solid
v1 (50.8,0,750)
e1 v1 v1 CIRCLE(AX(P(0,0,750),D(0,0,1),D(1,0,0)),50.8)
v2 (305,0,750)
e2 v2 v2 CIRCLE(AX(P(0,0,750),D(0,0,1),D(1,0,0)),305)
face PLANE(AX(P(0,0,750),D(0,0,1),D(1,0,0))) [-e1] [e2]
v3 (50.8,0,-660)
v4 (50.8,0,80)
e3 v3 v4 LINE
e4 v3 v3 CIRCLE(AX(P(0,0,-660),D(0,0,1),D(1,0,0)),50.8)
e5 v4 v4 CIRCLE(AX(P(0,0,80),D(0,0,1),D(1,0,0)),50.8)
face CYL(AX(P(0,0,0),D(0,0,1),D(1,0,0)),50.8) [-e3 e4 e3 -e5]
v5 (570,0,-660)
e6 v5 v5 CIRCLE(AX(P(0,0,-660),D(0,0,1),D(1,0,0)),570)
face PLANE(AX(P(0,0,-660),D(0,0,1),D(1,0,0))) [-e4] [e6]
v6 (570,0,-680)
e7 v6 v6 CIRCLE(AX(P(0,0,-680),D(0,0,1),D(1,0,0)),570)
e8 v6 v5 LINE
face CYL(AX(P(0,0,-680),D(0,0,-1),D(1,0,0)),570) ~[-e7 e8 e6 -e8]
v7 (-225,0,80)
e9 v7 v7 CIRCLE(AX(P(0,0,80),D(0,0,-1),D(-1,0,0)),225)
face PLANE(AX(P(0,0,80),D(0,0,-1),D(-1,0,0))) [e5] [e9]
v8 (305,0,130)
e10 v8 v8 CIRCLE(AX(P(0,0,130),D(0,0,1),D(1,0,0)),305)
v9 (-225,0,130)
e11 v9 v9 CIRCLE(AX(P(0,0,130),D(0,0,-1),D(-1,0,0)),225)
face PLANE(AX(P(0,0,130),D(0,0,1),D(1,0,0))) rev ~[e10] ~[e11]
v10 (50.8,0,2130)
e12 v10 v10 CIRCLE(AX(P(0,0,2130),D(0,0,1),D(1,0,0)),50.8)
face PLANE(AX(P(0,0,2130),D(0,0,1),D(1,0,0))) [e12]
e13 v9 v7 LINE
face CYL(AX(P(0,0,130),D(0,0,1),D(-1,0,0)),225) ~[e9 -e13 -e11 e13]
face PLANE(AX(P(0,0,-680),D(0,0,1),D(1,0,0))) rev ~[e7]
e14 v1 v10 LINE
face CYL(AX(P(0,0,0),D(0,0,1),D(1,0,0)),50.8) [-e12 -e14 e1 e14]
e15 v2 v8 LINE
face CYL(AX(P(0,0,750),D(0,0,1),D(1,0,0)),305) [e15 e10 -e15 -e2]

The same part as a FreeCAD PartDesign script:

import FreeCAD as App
import Part
import Sketcher

V = App.Vector
Q = App.Units.Quantity

doc = App.newDocument("Part")
params = doc.addObject("Spreadsheet::Sheet", "Params")
for row, (alias, value) in enumerate([
    ("sketch1_diameter", "101.6 mm"),
    ("pad1_length", "2130 mm"),
    ("pad1_length2", "680 mm"),
    ("sketch2_diameter", "1140 mm"),
    ("pad2_length", "20 mm"),
    ("sketch3_diameter", "610 mm"),
    ("pad3_length", "620 mm"),
    ("sketch4_diameter", "450 mm"),
    ("pad4_length", "50 mm"),
], start=1):
    params.set(f"A{row}", alias)
    params.set(f"B{row}", "=" + value)
    params.setAlias(f"B{row}", alias)

body = doc.addObject("PartDesign::Body", "Body")

sketch1 = body.newObject("Sketcher::SketchObject", "Sketch")
sketch1.AttachmentSupport = (doc.getObject("XY_Plane"), [""])
sketch1.MapMode = "FlatFace"
sketch1.addGeometry(Part.Circle(V(0, 0, 0), V(0, 0, 1), 50.8), False)
sketch1.addConstraint([
    Sketcher.Constraint("Coincident", 0, 3, -1, 1),
    Sketcher.Constraint("Diameter", 0, Q("101.6 mm")),
])
sketch1.setExpression("Constraints[1]", "Params.sketch1_diameter")
pad1 = body.newObject("PartDesign::Pad", "Pad")
pad1.Profile = sketch1
pad1.Type = "TwoLengths"
pad1.setExpression("Length", "Params.pad1_length")
pad1.setExpression("Length2", "Params.pad1_length2")

sketch2 = body.newObject("Sketcher::SketchObject", "Sketch001")
sketch2.AttachmentSupport = (doc.getObject("XY_Plane"), [""])
sketch2.MapMode = "FlatFace"
sketch2.AttachmentOffset = App.Placement(V(0, 0, -680), App.Rotation())
sketch2.addGeometry(Part.Circle(V(0, 0, 0), V(0, 0, 1), 570), False)
sketch2.addConstraint([
    Sketcher.Constraint("Coincident", 0, 3, -1, 1),
    Sketcher.Constraint("Diameter", 0, Q("1140 mm")),
])
sketch2.setExpression("Constraints[1]", "Params.sketch2_diameter")
pad2 = body.newObject("PartDesign::Pad", "Pad001")
pad2.Profile = sketch2
pad2.setExpression("Length", "Params.pad2_length")

sketch3 = body.newObject("Sketcher::SketchObject", "Sketch002")
sketch3.AttachmentSupport = (doc.getObject("XY_Plane"), [""])
sketch3.MapMode = "FlatFace"
sketch3.AttachmentOffset = App.Placement(V(0, 0, 750), App.Rotation())
sketch3.addGeometry(Part.Circle(V(0, 0, 0), V(0, 0, 1), 305), False)
sketch3.addConstraint([
    Sketcher.Constraint("Coincident", 0, 3, -1, 1),
    Sketcher.Constraint("Diameter", 0, Q("610 mm")),
])
sketch3.setExpression("Constraints[1]", "Params.sketch3_diameter")
pad3 = body.newObject("PartDesign::Pad", "Pad002")
pad3.Profile = sketch3
pad3.setExpression("Length", "Params.pad3_length")
pad3.Reversed = True

sketch4 = body.newObject("Sketcher::SketchObject", "Sketch003")
sketch4.AttachmentSupport = (doc.getObject("XY_Plane"), [""])
sketch4.MapMode = "FlatFace"
sketch4.AttachmentOffset = App.Placement(V(0, 0, 130), App.Rotation())
sketch4.addGeometry(Part.Circle(V(0, 0, 0), V(0, 0, 1), 225), False)
sketch4.addConstraint([
    Sketcher.Constraint("Coincident", 0, 3, -1, 1),
    Sketcher.Constraint("Diameter", 0, Q("450 mm")),
])
sketch4.setExpression("Constraints[1]", "Params.sketch4_diameter")
pad4 = body.newObject("PartDesign::Pad", "Pad003")
pad4.Profile = sketch4
pad4.setExpression("Length", "Params.pad4_length")
pad4.Reversed = True

doc.recompute()
